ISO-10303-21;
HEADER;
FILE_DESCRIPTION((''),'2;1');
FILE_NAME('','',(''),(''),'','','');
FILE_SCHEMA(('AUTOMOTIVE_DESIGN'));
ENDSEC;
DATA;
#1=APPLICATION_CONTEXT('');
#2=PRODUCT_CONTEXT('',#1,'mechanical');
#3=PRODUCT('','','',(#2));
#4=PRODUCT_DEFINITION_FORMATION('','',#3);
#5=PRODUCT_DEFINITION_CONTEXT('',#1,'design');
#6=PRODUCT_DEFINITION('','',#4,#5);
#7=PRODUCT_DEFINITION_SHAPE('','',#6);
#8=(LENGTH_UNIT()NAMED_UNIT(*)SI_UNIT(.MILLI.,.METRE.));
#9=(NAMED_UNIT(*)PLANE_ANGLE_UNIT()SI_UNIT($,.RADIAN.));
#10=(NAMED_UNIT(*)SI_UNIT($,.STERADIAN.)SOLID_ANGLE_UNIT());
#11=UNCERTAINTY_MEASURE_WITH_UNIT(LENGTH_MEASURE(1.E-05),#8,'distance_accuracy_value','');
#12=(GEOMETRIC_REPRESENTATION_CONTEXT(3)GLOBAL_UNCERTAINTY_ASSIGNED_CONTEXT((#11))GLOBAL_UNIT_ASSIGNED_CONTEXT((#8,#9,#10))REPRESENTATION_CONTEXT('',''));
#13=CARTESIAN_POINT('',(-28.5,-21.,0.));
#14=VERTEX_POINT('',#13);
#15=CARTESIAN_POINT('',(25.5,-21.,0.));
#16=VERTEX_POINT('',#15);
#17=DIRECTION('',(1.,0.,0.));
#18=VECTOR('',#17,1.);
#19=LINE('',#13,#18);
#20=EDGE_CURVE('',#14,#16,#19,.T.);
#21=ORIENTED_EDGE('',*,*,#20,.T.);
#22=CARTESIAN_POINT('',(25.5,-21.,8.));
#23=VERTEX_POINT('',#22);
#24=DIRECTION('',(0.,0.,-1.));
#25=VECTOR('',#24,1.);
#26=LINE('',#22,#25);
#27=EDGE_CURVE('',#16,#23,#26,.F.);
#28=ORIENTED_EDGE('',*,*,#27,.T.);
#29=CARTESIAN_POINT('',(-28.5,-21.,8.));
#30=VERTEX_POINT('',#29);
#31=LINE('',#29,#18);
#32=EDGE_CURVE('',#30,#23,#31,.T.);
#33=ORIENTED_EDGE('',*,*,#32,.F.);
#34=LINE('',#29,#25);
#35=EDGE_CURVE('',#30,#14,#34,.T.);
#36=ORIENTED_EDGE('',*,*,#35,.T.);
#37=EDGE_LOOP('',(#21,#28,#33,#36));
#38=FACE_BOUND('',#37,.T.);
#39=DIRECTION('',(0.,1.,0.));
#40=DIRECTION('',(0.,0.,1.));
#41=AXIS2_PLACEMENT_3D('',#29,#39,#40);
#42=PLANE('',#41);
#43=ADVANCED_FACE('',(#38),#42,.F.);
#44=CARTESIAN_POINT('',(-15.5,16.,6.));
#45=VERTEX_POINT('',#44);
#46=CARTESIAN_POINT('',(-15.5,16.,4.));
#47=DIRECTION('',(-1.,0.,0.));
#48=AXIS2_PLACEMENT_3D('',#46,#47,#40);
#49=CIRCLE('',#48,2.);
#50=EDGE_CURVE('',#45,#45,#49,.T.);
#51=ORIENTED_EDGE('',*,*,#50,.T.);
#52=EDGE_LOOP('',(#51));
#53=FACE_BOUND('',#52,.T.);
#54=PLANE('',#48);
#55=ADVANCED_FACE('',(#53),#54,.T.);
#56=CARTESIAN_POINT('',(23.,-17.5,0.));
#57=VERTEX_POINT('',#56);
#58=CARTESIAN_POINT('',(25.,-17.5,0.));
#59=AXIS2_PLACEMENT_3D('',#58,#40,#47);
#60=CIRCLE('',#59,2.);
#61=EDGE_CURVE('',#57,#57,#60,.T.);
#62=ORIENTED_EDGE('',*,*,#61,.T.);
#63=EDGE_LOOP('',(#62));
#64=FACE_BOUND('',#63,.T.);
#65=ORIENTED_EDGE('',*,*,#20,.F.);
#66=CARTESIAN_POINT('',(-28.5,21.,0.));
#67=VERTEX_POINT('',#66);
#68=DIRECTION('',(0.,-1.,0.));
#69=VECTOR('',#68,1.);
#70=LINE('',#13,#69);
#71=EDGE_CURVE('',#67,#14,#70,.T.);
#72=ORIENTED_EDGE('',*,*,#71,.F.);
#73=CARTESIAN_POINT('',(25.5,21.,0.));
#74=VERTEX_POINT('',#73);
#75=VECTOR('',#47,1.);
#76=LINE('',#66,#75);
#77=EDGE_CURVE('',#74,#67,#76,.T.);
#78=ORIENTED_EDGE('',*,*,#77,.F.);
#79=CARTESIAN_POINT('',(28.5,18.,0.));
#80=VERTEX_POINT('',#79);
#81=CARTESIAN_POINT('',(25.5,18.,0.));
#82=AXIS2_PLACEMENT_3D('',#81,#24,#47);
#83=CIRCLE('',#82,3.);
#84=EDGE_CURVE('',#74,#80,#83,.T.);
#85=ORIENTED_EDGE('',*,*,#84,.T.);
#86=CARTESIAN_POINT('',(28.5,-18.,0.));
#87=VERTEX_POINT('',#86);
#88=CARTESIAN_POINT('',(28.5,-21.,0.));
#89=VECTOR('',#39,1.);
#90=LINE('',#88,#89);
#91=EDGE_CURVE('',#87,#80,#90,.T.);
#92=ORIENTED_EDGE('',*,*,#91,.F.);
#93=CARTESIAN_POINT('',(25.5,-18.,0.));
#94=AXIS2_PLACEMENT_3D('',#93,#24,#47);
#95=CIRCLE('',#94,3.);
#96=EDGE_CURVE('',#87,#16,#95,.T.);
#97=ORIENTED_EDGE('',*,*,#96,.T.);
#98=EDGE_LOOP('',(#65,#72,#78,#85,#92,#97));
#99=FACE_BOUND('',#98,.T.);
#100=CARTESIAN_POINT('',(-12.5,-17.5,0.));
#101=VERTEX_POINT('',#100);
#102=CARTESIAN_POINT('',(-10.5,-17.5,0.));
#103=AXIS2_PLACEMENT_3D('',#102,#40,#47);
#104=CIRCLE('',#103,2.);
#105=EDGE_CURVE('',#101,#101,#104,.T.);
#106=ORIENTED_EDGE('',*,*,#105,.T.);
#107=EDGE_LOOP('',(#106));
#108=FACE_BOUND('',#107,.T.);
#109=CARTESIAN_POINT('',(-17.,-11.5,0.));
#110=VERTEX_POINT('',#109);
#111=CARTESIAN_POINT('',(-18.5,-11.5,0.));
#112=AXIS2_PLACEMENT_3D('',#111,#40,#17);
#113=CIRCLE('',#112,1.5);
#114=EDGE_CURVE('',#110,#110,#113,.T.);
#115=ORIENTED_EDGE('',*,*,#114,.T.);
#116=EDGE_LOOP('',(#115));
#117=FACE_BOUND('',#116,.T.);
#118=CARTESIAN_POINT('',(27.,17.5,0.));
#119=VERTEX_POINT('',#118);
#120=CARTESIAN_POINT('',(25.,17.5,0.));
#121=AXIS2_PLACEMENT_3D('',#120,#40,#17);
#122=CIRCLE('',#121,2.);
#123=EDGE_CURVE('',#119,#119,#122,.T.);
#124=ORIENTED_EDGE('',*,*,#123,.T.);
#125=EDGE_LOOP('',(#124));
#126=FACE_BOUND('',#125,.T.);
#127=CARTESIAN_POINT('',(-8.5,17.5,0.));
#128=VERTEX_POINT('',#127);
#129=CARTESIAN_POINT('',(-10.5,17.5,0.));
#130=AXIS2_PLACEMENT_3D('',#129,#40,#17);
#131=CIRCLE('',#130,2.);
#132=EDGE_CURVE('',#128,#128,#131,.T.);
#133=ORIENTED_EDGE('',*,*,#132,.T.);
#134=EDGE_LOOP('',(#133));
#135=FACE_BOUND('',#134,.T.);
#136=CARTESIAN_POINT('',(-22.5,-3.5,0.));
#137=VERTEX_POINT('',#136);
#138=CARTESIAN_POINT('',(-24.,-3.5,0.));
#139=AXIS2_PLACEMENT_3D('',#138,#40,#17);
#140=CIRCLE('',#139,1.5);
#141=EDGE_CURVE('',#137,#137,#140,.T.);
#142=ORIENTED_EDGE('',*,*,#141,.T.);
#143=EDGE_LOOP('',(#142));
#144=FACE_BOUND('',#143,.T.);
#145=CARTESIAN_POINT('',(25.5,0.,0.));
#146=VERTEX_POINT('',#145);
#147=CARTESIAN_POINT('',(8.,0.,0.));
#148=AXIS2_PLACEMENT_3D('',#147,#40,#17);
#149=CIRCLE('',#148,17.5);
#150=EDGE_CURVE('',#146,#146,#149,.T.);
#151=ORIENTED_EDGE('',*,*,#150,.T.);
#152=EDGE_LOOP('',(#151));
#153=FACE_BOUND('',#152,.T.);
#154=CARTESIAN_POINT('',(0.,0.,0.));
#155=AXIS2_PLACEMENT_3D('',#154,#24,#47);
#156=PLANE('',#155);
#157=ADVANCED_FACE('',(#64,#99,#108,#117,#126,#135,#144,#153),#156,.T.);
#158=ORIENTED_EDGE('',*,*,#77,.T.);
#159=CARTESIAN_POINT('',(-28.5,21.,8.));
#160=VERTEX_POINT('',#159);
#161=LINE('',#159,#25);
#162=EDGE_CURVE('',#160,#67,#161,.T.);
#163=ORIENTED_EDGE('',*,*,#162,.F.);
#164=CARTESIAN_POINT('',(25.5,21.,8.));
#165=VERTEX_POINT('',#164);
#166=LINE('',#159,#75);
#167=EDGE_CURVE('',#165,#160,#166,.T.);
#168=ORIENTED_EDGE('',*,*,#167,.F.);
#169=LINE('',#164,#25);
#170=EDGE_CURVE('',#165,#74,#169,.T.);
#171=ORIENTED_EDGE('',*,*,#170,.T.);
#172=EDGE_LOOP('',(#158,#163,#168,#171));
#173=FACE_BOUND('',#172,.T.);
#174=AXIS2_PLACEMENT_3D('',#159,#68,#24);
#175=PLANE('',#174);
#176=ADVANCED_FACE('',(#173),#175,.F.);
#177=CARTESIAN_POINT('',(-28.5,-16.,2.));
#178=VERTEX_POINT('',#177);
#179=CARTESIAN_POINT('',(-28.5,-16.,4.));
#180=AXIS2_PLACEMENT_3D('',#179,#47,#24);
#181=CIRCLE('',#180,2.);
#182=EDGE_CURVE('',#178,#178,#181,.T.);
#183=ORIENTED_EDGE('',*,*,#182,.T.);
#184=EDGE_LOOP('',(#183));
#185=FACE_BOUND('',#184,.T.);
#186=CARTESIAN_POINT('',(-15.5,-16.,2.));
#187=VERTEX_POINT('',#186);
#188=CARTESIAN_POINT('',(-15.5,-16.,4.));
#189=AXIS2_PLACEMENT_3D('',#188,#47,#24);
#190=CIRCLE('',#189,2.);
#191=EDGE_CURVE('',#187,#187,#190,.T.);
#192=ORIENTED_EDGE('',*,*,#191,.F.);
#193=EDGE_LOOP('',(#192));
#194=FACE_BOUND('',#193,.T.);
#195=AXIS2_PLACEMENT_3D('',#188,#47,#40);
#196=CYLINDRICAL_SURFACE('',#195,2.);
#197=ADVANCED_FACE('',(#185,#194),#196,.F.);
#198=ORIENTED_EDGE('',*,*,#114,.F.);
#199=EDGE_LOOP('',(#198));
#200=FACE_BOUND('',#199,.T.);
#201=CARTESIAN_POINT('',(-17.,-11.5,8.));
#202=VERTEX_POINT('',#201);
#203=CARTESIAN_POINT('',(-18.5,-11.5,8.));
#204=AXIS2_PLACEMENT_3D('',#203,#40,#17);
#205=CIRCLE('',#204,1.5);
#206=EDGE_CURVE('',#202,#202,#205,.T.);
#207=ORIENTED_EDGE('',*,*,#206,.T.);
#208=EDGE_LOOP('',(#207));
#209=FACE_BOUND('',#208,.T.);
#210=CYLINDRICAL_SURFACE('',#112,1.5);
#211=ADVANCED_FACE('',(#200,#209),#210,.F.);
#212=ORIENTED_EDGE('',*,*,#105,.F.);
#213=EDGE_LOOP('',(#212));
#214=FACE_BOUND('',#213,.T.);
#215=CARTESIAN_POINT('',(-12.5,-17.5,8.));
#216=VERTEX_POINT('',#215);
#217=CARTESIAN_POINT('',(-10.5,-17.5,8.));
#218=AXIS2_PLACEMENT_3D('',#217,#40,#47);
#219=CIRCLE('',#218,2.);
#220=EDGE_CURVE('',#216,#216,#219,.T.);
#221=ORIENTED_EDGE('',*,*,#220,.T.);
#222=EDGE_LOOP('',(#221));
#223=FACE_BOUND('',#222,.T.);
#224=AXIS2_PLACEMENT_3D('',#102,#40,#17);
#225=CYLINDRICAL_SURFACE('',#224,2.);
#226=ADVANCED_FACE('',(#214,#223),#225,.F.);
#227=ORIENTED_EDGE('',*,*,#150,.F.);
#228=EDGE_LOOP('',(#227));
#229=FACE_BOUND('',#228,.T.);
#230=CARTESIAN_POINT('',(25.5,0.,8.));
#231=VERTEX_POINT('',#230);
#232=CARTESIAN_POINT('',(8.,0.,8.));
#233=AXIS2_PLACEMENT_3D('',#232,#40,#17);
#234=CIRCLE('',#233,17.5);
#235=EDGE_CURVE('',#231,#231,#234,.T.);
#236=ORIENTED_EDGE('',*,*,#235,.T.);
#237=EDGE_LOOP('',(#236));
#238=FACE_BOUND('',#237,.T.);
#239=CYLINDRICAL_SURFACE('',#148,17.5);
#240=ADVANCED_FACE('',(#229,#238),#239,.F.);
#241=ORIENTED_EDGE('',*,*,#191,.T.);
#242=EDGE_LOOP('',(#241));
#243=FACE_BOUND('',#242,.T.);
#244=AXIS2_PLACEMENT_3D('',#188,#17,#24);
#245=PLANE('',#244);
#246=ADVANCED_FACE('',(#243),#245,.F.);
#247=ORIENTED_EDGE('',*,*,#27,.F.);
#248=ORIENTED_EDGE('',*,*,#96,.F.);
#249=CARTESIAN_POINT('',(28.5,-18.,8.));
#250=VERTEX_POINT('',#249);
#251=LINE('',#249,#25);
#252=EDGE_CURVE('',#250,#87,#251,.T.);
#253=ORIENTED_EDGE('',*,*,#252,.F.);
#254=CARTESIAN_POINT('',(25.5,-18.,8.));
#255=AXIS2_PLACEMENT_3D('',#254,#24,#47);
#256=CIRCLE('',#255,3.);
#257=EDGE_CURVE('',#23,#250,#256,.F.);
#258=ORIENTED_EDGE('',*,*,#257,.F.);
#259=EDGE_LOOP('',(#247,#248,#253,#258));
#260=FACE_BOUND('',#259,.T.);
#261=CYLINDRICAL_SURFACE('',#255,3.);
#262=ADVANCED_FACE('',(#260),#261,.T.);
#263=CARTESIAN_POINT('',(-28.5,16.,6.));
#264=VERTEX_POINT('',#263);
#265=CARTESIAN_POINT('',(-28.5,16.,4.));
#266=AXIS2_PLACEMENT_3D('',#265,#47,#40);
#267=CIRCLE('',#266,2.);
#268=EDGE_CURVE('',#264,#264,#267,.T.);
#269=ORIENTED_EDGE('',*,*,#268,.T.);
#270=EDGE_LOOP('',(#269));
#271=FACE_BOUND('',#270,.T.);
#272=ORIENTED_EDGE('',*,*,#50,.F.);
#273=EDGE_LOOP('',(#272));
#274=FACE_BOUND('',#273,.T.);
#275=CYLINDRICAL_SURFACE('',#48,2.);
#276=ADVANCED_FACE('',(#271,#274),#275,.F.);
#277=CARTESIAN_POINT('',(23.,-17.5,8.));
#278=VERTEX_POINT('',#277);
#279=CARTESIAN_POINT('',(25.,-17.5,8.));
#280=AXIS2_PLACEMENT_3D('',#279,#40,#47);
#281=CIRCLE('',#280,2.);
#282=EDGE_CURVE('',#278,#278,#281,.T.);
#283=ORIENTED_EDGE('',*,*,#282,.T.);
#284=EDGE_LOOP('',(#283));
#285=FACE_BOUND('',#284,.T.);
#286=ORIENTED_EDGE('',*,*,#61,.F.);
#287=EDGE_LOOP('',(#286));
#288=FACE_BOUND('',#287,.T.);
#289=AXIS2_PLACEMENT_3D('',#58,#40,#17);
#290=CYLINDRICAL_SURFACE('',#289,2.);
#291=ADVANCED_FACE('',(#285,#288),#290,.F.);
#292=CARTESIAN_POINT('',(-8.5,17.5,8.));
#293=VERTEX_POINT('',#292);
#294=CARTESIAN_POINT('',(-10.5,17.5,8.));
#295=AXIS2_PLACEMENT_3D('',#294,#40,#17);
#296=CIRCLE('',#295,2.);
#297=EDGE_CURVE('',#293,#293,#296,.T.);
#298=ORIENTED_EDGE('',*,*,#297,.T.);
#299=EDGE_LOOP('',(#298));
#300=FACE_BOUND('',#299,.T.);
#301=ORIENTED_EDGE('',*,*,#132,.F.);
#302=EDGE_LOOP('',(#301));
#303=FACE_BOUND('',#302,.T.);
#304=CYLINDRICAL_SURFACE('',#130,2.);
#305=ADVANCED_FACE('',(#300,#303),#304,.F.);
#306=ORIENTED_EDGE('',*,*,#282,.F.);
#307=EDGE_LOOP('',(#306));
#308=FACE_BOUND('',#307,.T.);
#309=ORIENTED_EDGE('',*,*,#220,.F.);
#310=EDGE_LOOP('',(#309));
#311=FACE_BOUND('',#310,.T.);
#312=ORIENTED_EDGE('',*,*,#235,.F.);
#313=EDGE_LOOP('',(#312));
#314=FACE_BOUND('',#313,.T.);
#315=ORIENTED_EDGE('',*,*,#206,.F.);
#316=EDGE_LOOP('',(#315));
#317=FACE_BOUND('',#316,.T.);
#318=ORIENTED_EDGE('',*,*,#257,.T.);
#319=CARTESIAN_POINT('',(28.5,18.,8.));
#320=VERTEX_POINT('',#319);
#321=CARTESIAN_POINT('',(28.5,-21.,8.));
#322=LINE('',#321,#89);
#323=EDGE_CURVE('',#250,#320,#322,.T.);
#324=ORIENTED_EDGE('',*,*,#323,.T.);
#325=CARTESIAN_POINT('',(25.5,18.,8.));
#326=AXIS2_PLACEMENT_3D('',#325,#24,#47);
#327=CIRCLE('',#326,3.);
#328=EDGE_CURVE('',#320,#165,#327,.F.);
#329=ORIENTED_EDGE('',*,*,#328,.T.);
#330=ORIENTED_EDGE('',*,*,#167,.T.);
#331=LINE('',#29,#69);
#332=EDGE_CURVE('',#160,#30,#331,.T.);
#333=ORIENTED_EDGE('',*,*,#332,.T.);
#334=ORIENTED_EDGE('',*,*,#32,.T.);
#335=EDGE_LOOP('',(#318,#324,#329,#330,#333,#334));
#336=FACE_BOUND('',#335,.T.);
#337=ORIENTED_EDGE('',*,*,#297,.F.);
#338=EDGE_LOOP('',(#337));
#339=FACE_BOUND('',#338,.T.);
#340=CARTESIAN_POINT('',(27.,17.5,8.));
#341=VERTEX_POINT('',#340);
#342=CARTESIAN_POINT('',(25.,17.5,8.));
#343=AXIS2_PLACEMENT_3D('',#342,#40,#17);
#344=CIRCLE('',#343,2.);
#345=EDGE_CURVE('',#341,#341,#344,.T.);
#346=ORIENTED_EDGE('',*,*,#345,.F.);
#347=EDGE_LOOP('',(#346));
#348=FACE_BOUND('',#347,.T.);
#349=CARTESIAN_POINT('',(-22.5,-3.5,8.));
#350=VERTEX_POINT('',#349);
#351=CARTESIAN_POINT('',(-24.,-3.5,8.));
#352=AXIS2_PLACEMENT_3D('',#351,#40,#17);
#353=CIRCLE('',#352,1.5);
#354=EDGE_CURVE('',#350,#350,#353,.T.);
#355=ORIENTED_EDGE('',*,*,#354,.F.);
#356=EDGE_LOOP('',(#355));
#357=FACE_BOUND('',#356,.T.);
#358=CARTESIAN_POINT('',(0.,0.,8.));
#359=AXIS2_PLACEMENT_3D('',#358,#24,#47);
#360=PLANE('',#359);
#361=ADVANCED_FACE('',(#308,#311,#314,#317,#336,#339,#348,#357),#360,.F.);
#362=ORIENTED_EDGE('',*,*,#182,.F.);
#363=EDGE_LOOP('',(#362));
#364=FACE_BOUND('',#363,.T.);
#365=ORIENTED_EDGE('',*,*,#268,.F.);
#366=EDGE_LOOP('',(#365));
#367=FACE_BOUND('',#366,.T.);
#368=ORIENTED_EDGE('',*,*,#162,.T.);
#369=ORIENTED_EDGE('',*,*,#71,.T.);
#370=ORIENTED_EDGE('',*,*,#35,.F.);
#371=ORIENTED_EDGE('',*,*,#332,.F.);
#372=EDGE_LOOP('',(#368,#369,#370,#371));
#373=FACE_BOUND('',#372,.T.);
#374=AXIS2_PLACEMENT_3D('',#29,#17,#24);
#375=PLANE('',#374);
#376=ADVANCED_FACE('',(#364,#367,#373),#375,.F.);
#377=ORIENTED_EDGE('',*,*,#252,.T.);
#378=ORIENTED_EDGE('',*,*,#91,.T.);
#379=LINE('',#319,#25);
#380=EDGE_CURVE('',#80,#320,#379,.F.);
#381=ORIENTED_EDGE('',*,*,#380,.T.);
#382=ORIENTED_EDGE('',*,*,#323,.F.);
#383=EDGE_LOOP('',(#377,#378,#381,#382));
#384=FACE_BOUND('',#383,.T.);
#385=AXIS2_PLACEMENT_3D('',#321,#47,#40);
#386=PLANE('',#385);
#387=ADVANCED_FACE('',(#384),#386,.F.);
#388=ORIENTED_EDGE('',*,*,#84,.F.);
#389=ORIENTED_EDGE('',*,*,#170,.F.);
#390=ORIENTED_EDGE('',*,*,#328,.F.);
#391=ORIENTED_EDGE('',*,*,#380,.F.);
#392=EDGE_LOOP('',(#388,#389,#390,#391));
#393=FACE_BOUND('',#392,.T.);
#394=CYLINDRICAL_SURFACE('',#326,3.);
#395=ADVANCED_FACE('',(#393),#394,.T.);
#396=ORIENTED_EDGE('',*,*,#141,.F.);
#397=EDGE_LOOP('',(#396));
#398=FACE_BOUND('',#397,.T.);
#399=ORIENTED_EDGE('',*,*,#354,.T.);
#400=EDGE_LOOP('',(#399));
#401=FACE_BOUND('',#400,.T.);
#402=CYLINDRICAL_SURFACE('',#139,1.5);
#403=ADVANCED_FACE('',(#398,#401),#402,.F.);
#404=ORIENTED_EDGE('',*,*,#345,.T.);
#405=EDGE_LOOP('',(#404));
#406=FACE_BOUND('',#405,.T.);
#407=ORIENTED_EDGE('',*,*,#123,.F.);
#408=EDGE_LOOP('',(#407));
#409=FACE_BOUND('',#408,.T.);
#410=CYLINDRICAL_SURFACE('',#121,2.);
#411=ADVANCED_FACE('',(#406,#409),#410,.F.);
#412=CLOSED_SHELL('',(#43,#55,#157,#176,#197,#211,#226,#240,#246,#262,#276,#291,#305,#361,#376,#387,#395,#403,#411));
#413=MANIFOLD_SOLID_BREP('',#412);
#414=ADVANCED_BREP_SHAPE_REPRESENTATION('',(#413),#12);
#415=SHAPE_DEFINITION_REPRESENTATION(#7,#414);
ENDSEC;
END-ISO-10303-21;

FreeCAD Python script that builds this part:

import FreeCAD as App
import Part
import Sketcher


def edges_at(feature, points):
    """Names of the edges that pass closest to the given points."""
    edges = feature.Shape.Edges
    near = lambda p: min(range(len(edges)), key=lambda i: edges[i].distToShape(Part.Vertex(*p))[0])
    return sorted({f"Edge{near(p) + 1}" for p in points})


def add_polygon(sketch, points):
    """Adds a closed chain of lines whose ends are joined by coincident constraints."""
    first, n = sketch.GeometryCount, len(points)
    for a, b in zip(points, points[1:] + points[:1]):
        sketch.addGeometry(Part.LineSegment(App.Vector(*a, 0), App.Vector(*b, 0)), False)
    for i in range(n):
        sketch.addConstraint(Sketcher.Constraint("Coincident", first + i, 2, first + (i + 1) % n, 1))

doc = App.newDocument("Part")
body = doc.addObject("PartDesign::Body", "Body")

# Sketch on XY plane
sketch1 = body.newObject("Sketcher::SketchObject", "Sketch")
sketch1.AttachmentSupport = (doc.getObject("XY_Plane"), [""])
sketch1.MapMode = "FlatFace"
add_polygon(sketch1, [(-28, 21), (-28, -21), (28, -21), (28, 21)])  # lines 0-3
sketch1.addConstraint([
    Sketcher.Constraint("Vertical", 0),
    Sketcher.Constraint("Horizontal", 1),
    Sketcher.Constraint("Vertical", 2),
    Sketcher.Constraint("Horizontal", 3),
    Sketcher.Constraint("Symmetric", 0, 2, 2, 2, -1, 1),
    Sketcher.Constraint("DistanceX", 1, 1, 1, 2, 57.0),
    Sketcher.Constraint("DistanceY", 0, 2, 0, 1, 42.0),
])
pad1 = body.newObject("PartDesign::Pad", "Pad")
pad1.Profile = sketch1
pad1.Length = 8

# Sketch on XY plane
sketch2 = body.newObject("Sketcher::SketchObject", "Sketch001")
sketch2.AttachmentSupport = (doc.getObject("XY_Plane"), [""])
sketch2.MapMode = "FlatFace"
sketch2.AttachmentOffset = App.Placement(App.Vector(0, 0, 8), App.Rotation())
sketch2.addGeometry([
    Part.Circle(App.Vector(8, 0, 0), App.Vector(0, 0, 1), 17.5),  # 0
    Part.Circle(App.Vector(25, 17.5, 0), App.Vector(0, 0, 1), 2),  # 1
    Part.Circle(App.Vector(-10.5, 17.5, 0), App.Vector(0, 0, 1), 2),  # 2
    Part.Circle(App.Vector(25, -17.5, 0), App.Vector(0, 0, 1), 2),  # 3
    Part.Circle(App.Vector(-10.5, -17.5, 0), App.Vector(0, 0, 1), 2),  # 4
    Part.Circle(App.Vector(-18.5, -11.5, 0), App.Vector(0, 0, 1), 1.5),  # 5
    Part.Circle(App.Vector(-24, -3.5, 0), App.Vector(0, 0, 1), 1.5),  # 6
], False)
sketch2.addConstraint([
    Sketcher.Constraint("Equal", 1, 2),
    Sketcher.Constraint("Equal", 2, 3),
    Sketcher.Constraint("Equal", 3, 4),
    Sketcher.Constraint("Equal", 5, 6),
    Sketcher.Constraint("Symmetric", 1, 3, 3, 3, -1),
    Sketcher.Constraint("Symmetric", 2, 3, 4, 3, -1),
    Sketcher.Constraint("PointOnObject", 0, 3, -1),
    Sketcher.Constraint("Horizontal", 1, 3, 2, 3),
    Sketcher.Constraint("Diameter", 0, 35.0),
    Sketcher.Constraint("Diameter", 1, 4.0),
    Sketcher.Constraint("Diameter", 5, 3.0),
    Sketcher.Constraint("DistanceX", -1, 1, 0, 3, 8.0),
    Sketcher.Constraint("DistanceX", -1, 1, 1, 3, 25.0),
    Sketcher.Constraint("DistanceX", 6, 3, -1, 1, 24.0),
    Sketcher.Constraint("DistanceY", 3, 3, 1, 3, 35.0),
    Sketcher.Constraint("DistanceX", 5, 3, 4, 3, 8.0),
    Sketcher.Constraint("DistanceY", 4, 3, 5, 3, 6.0),
    Sketcher.Constraint("DistanceY", 5, 3, 6, 3, 8.0),
    Sketcher.Constraint("DistanceX", 2, 3, -1, 1, 10.5),
])
pocket1 = body.newObject("PartDesign::Pocket", "Pocket")
pocket1.Profile = sketch2
pocket1.Type = "ThroughAll"
doc.recompute()

fillet = body.newObject("PartDesign::Fillet", "Fillet")
fillet.Base = (pocket1, edges_at(pocket1, [(28.5, -21, 4)]))
fillet.Radius = 3
doc.recompute()

fillet2 = body.newObject("PartDesign::Fillet", "Fillet001")
fillet2.Base = (fillet, edges_at(fillet, [(28.5, 21, 4)]))
fillet2.Radius = 3

# Sketch on YZ plane
sketch3 = body.newObject("Sketcher::SketchObject", "Sketch002")
sketch3.AttachmentSupport = (doc.getObject("YZ_Plane"), [""])
sketch3.MapMode = "FlatFace"
sketch3.AttachmentOffset = App.Placement(App.Vector(0, 0, -28.5), App.Rotation())
sketch3.addGeometry([
    Part.Circle(App.Vector(16, 4, 0), App.Vector(0, 0, 1), 2),
    Part.Circle(App.Vector(-16, 4, 0), App.Vector(0, 0, 1), 2),
], False)
sketch3.addConstraint([
    Sketcher.Constraint("Equal", 0, 1),
    Sketcher.Constraint("Symmetric", 0, 3, 1, 3, -2),
    Sketcher.Constraint("Diameter", 0, 4.0),
    Sketcher.Constraint("DistanceX", -1, 1, 0, 3, 16.0),
    Sketcher.Constraint("DistanceY", -1, 1, 0, 3, 4.0),
])
pocket2 = body.newObject("PartDesign::Pocket", "Pocket001")
pocket2.Profile = sketch3
pocket2.Length = 13
pocket2.Reversed = True

doc.recompute()
